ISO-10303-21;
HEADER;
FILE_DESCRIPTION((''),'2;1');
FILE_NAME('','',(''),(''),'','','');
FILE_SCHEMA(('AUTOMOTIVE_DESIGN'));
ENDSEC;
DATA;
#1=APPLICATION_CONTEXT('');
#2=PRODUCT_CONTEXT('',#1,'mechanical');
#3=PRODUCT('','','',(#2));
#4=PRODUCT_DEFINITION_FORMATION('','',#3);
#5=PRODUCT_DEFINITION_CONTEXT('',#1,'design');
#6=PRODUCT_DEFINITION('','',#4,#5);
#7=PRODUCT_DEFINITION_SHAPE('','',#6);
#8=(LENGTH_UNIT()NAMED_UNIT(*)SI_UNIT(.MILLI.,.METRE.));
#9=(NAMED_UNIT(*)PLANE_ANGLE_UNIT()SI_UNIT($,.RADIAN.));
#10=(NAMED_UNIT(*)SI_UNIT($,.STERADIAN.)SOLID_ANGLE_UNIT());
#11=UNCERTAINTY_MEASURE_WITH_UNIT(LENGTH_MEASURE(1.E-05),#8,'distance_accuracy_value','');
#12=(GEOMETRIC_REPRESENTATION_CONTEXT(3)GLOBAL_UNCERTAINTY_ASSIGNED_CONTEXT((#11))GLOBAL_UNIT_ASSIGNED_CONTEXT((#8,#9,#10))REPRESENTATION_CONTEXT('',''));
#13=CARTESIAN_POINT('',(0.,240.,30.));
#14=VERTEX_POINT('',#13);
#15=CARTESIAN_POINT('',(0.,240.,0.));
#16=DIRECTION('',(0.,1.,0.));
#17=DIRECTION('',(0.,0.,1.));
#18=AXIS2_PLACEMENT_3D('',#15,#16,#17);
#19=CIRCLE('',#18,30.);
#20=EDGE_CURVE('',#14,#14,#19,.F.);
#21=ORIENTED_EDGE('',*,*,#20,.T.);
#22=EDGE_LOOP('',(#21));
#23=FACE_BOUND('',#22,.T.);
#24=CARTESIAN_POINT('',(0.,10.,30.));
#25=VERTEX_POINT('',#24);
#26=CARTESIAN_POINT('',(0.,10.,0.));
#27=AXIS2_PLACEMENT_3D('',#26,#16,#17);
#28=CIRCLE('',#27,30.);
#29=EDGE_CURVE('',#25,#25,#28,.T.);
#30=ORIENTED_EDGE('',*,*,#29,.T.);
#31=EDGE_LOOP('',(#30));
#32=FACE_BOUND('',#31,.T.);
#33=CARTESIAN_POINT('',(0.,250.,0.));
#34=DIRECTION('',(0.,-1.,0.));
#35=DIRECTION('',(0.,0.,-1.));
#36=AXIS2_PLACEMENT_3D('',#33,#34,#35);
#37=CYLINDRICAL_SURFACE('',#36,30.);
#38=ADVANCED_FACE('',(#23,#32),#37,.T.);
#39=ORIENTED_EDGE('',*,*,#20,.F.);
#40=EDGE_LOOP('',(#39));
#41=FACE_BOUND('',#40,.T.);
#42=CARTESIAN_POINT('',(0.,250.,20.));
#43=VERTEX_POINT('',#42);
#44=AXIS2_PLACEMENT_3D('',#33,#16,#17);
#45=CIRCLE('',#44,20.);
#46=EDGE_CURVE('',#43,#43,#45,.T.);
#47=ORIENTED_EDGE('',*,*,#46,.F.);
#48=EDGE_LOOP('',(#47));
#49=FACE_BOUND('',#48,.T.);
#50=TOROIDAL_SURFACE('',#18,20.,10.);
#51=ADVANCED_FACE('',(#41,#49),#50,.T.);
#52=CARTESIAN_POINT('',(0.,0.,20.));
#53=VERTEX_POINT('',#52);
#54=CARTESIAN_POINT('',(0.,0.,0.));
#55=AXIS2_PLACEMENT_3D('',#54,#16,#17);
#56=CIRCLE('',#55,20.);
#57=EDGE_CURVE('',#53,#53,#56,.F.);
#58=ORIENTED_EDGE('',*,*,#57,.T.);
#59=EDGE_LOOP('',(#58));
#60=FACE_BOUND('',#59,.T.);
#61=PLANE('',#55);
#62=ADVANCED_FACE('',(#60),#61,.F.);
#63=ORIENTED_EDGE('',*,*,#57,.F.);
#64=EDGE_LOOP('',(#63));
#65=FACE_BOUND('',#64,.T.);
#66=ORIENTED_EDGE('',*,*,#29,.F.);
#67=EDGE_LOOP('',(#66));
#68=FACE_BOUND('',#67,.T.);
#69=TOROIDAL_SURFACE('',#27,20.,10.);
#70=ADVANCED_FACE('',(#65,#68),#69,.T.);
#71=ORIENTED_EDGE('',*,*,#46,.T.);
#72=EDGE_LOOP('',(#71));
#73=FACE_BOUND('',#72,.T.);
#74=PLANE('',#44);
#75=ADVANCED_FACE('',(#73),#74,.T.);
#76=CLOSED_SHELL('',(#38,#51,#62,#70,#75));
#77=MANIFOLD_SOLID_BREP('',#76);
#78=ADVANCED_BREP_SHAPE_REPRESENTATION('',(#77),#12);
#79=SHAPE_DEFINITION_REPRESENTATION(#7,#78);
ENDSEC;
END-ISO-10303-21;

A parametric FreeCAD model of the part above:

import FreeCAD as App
import Part
import Sketcher


def edges_at(feature, points):
    """Names of the edges that pass closest to the given points."""
    edges = feature.Shape.Edges
    near = lambda p: min(range(len(edges)), key=lambda i: edges[i].distToShape(Part.Vertex(*p))[0])
    return sorted({f"Edge{near(p) + 1}" for p in points})

doc = App.newDocument("Part")
params = doc.addObject("Spreadsheet::Sheet", "Params")
for row, (alias, value) in enumerate([
    ("sketch1_diameter", "60 mm"),
    ("pad1_length", "250 mm"),
    ("fillet_radius", "10 mm"),
], start=1):
    params.set(f"A{row}", alias)
    params.set(f"B{row}", "=" + value)
    params.setAlias(f"B{row}", alias)

body = doc.addObject("PartDesign::Body", "Body")

# Sketch on XZ plane
sketch1 = body.newObject("Sketcher::SketchObject", "Sketch")
sketch1.AttachmentSupport = (doc.getObject("XZ_Plane"), [""])
sketch1.MapMode = "FlatFace"
sketch1.addGeometry(Part.Circle(App.Vector(0, 0, 0), App.Vector(0, 0, 1), 30), False)
sketch1.addConstraint([
    Sketcher.Constraint("Coincident", 0, 3, -1, 1),
    Sketcher.Constraint("Diameter", 0, 60.0),
])
sketch1.setExpression("Constraints[1]", "Params.sketch1_diameter")
pad1 = body.newObject("PartDesign::Pad", "Pad")
pad1.Profile = sketch1
pad1.setExpression("Length", "Params.pad1_length")
pad1.Reversed = True
doc.recompute()

fillet = body.newObject("PartDesign::Fillet", "Fillet")
fillet.Base = (pad1, edges_at(pad1, [(-30, 0, 0), (-30, 250, 0)]))
fillet.setExpression("Radius", "Params.fillet_radius")

doc.recompute()
